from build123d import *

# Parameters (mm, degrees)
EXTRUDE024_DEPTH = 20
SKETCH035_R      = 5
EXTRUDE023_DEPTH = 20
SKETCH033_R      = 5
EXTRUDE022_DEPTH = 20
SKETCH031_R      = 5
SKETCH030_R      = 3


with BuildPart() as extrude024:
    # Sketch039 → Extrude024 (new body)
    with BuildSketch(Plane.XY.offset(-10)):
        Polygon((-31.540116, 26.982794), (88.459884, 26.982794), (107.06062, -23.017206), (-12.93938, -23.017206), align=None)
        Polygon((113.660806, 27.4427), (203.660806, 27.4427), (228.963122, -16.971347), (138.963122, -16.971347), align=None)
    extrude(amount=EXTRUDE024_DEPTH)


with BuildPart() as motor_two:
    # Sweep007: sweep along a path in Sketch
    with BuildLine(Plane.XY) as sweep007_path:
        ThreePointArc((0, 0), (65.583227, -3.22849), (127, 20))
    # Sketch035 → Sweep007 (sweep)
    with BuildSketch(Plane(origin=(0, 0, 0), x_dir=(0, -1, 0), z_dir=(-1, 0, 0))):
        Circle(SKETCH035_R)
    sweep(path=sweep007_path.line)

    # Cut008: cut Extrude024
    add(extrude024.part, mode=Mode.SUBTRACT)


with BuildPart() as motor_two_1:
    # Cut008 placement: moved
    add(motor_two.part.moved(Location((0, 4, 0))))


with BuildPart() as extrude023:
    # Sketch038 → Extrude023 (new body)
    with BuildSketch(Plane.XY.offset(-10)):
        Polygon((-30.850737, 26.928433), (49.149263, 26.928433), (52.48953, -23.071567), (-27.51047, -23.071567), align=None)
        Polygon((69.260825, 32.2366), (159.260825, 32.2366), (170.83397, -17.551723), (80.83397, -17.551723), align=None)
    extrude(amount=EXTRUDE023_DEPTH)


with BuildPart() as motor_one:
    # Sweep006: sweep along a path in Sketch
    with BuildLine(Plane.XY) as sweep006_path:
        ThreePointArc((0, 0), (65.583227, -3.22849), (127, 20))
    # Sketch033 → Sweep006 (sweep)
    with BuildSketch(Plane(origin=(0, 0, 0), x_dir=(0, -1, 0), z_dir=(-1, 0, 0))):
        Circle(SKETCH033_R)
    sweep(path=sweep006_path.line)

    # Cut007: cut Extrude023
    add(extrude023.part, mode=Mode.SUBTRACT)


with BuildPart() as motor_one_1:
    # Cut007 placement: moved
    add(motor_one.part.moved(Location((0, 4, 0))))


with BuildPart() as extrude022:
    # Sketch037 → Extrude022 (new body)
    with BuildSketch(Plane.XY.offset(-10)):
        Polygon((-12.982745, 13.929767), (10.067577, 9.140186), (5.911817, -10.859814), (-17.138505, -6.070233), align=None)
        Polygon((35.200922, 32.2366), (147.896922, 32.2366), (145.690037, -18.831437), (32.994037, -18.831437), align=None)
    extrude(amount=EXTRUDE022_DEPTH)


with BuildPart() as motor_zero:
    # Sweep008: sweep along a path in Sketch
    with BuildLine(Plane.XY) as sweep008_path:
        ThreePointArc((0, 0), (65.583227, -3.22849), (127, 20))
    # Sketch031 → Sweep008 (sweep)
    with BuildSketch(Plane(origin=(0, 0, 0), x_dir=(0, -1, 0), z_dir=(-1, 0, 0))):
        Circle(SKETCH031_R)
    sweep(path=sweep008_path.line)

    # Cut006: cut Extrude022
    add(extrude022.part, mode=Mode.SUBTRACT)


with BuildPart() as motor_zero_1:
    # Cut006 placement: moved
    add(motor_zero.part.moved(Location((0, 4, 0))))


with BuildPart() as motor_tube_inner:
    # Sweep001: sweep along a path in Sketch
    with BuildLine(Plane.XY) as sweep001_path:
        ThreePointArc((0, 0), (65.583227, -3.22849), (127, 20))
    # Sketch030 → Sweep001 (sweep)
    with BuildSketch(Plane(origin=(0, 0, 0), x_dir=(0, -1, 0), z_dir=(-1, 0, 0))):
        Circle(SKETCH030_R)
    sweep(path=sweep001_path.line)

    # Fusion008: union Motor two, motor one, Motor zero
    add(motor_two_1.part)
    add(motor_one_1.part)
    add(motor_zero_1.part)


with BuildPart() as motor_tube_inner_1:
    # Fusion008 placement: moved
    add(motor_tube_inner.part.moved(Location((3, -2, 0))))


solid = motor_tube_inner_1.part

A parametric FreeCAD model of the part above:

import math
import FreeCAD as App
import Part
import Sketcher
from FreeCAD import Vector


def add_polygon(sketch, points):
    """Adds a closed chain of lines whose ends are joined by coincident constraints."""
    first, n = sketch.GeometryCount, len(points)
    for a, b in zip(points, points[1:] + points[:1]):
        sketch.addGeometry(Part.LineSegment(App.Vector(*a, 0), App.Vector(*b, 0)), False)
    for i in range(n):
        sketch.addConstraint(Sketcher.Constraint("Coincident", first + i, 2, first + (i + 1) % n, 1))

doc = App.newDocument("Part")
body = doc.addObject("PartDesign::Body", "Body")
body.AllowCompound = True

# Sketch on XY plane
sketch1 = body.newObject("Sketcher::SketchObject", "Sketch")
sketch1.AttachmentSupport = (doc.getObject("XY_Plane"), [""])
sketch1.MapMode = "FlatFace"
sketch1.AttachmentOffset = App.Placement(Vector(0, 0, -10), App.Rotation())
add_polygon(sketch1, [(88, 27), (-32, 27), (-13, -23), (107, -23)])  # lines 0-3
add_polygon(sketch1, [(204, 27), (114, 27), (139, -17), (229, -17)])  # lines 4-7
sketch1.addConstraint(Sketcher.Constraint("Horizontal", 0))
sketch1.addConstraint(Sketcher.Constraint("Horizontal", 2))
sketch1.addConstraint(Sketcher.Constraint("Horizontal", 4))
sketch1.addConstraint(Sketcher.Constraint("Horizontal", 6))
sketch1.addConstraint(Sketcher.Constraint("Parallel", 1, 3))
sketch1.addConstraint(Sketcher.Constraint("Parallel", 5, 7))
sketch1.addConstraint(Sketcher.Constraint("DistanceX", 0, 2, 0, 1, 120.0))
sketch1.addConstraint(Sketcher.Constraint("DistanceX", 4, 2, 4, 1, 90.0))
sketch1.addConstraint(Sketcher.Constraint("DistanceY", 1, 2, 0, 2, 50.0))
sketch1.addConstraint(Sketcher.Constraint("Distance", 5, 51.1157))
sketch1.addConstraint(Sketcher.Constraint("DistanceY", -1, 1, 4, 2, 27.4427))
sketch1.addConstraint(Sketcher.Constraint("DistanceX", 2, 2, 5, 2, 31.902502))
sketch1.addConstraint(Sketcher.Constraint("DistanceX", 1, 2, -1, 1, 12.93938))
sketch1.addConstraint(Sketcher.Constraint("DistanceX", 3, 2, 4, 2, 25.200922))
sketch1.addConstraint(Sketcher.Constraint("DistanceY", 2, 2, 5, 2, 6.045859))
sketch1.addConstraint(Sketcher.Constraint("DistanceX", 0, 2, 5, 2, 170.503238))
pad1 = body.newObject("PartDesign::Pad", "Pad")
pad1.Profile = sketch1
pad1.Length = 20
body2 = doc.addObject("PartDesign::Body", "Body001")

# Sketch on YZ plane
sketch2 = body2.newObject("Sketcher::SketchObject", "Sketch001")
sketch2.AttachmentSupport = (doc.getObject("YZ_Plane001"), [""])
sketch2.MapMode = "FlatFace"
sketch2.addGeometry(Part.Circle(Vector(0, 0, 0), Vector(0, 0, 1), 5), False)
sketch2.addConstraint(Sketcher.Constraint("Coincident", 0, 3, -1, 1))
sketch2.addConstraint(Sketcher.Constraint("Diameter", 0, 10.0))

# Sketch on XY plane
sketch3 = body2.newObject("Sketcher::SketchObject", "Sketch002")
sketch3.AttachmentSupport = (doc.getObject("XY_Plane001"), [""])
sketch3.MapMode = "FlatFace"
sketch3.addGeometry(Part.ArcOfCircle(Part.Circle(Vector(41, 156, 0), Vector(0, 0, 1), 161), math.radians(-105), math.radians(-58)), False)
sketch3.addConstraint(Sketcher.Constraint("Coincident", 0, 1, -1, 1))
sketch3.addConstraint(Sketcher.Constraint("DistanceX", -1, 1, 0, 2, 127.0))
sketch3.addConstraint(Sketcher.Constraint("DistanceY", -1, 1, 0, 2, 20.0))
sketch3.addConstraint(Sketcher.Constraint("Radius", 0, 160.981841))
doc.recompute()

additivepipe = body2.newObject("PartDesign::AdditivePipe", "AdditivePipe")
additivepipe.Profile = sketch2
additivepipe.Spine = (sketch3, ["Edge1"])
doc.recompute()

boolean = body2.newObject("PartDesign::Boolean", "Boolean")
boolean.Type = "Cut"
boolean.addObjects([body])
body3 = doc.addObject("PartDesign::Body", "Body002")
doc.recompute()

body2.Placement = App.Placement(Vector(0, 4, 0), App.Rotation(Vector(0, 0, 1), 0))
boolean2 = body3.newObject("PartDesign::Boolean", "Boolean001")
boolean2.Type = "Fuse"
boolean2.addObjects([body2])
body4 = doc.addObject("PartDesign::Body", "Body003")
body4.AllowCompound = True

# Sketch on XY plane
sketch4 = body4.newObject("Sketcher::SketchObject", "Sketch003")
sketch4.AttachmentSupport = (doc.getObject("XY_Plane003"), [""])
sketch4.MapMode = "FlatFace"
sketch4.AttachmentOffset = App.Placement(Vector(0, 0, -10), App.Rotation())
add_polygon(sketch4, [(49, 27), (-31, 27), (-28, -23), (52, -23)])  # lines 0-3
add_polygon(sketch4, [(159, 32), (69, 32), (81, -18), (171, -18)])  # lines 4-7
sketch4.addConstraint(Sketcher.Constraint("Horizontal", 0))
sketch4.addConstraint(Sketcher.Constraint("Horizontal", 2))
sketch4.addConstraint(Sketcher.Constraint("Horizontal", 4))
sketch4.addConstraint(Sketcher.Constraint("Horizontal", 6))
sketch4.addConstraint(Sketcher.Constraint("Parallel", 1, 3))
sketch4.addConstraint(Sketcher.Constraint("Parallel", 5, 7))
sketch4.addConstraint(Sketcher.Constraint("DistanceX", 0, 2, 0, 1, 80.0))
sketch4.addConstraint(Sketcher.Constraint("DistanceX", 4, 2, 4, 1, 90.0))
sketch4.addConstraint(Sketcher.Constraint("DistanceY", 1, 2, 0, 2, 50.0))
sketch4.addConstraint(Sketcher.Constraint("Distance", 5, 51.1157))
sketch4.addConstraint(Sketcher.Constraint("DistanceY", -1, 1, 4, 2, 32.2366))
sketch4.addConstraint(Sketcher.Constraint("Distance", 1, 50.11145))
sketch4.addConstraint(Sketcher.Constraint("DistanceX", 1, 2, -1, 1, 27.51047))
sketch4.addConstraint(Sketcher.Constraint("DistanceX", -1, 1, 5, 2, 80.83397))
sketch4.addConstraint(Sketcher.Constraint("DistanceX", 3, 2, 4, 2, 20.111562))
sketch4.addConstraint(Sketcher.Constraint("DistanceY", -1, 1, 0, 2, 26.928433))
pad2 = body4.newObject("PartDesign::Pad", "Pad001")
pad2.Profile = sketch4
pad2.Length = 20
body5 = doc.addObject("PartDesign::Body", "Body004")

# Sketch on YZ plane
sketch5 = body5.newObject("Sketcher::SketchObject", "Sketch004")
sketch5.AttachmentSupport = (doc.getObject("YZ_Plane004"), [""])
sketch5.MapMode = "FlatFace"
sketch5.addGeometry(Part.Circle(Vector(0, 0, 0), Vector(0, 0, 1), 5), False)
sketch5.addConstraint(Sketcher.Constraint("Coincident", 0, 3, -1, 1))
sketch5.addConstraint(Sketcher.Constraint("Diameter", 0, 10.0))

# Sketch on XY plane
sketch6 = body5.newObject("Sketcher::SketchObject", "Sketch005")
sketch6.AttachmentSupport = (doc.getObject("XY_Plane004"), [""])
sketch6.MapMode = "FlatFace"
sketch6.addGeometry(Part.ArcOfCircle(Part.Circle(Vector(41, 156, 0), Vector(0, 0, 1), 161), math.radians(-105), math.radians(-58)), False)
sketch6.addConstraint(Sketcher.Constraint("Coincident", 0, 1, -1, 1))
sketch6.addConstraint(Sketcher.Constraint("DistanceX", -1, 1, 0, 2, 127.0))
sketch6.addConstraint(Sketcher.Constraint("DistanceY", -1, 1, 0, 2, 20.0))
sketch6.addConstraint(Sketcher.Constraint("Radius", 0, 160.981841))
doc.recompute()

additivepipe2 = body5.newObject("PartDesign::AdditivePipe", "AdditivePipe001")
additivepipe2.Profile = sketch5
additivepipe2.Spine = (sketch6, ["Edge1"])
doc.recompute()

boolean3 = body5.newObject("PartDesign::Boolean", "Boolean002")
boolean3.Type = "Cut"
boolean3.addObjects([body4])
body6 = doc.addObject("PartDesign::Body", "Body005")
doc.recompute()

body5.Placement = App.Placement(Vector(0, 4, 0), App.Rotation(Vector(0, 0, 1), 0))
boolean4 = body6.newObject("PartDesign::Boolean", "Boolean003")
boolean4.Type = "Fuse"
boolean4.addObjects([body5])
body7 = doc.addObject("PartDesign::Body", "Body006")
body7.AllowCompound = True

# Sketch on XY plane
sketch7 = body7.newObject("Sketcher::SketchObject", "Sketch006")
sketch7.AttachmentSupport = (doc.getObject("XY_Plane006"), [""])
sketch7.MapMode = "FlatFace"
sketch7.AttachmentOffset = App.Placement(Vector(0, 0, -10), App.Rotation())
add_polygon(sketch7, [(10, 9), (-13, 14), (-17, -6), (6, -11)])  # lines 0-3
add_polygon(sketch7, [(148, 32), (35, 32), (33, -19), (146, -19)])  # lines 4-7
sketch7.addConstraint(Sketcher.Constraint("Horizontal", 4))
sketch7.addConstraint(Sketcher.Constraint("Horizontal", 6))
sketch7.addConstraint(Sketcher.Constraint("Perpendicular", 0, 1))
sketch7.addConstraint(Sketcher.Constraint("Perpendicular", 1, 2))
sketch7.addConstraint(Sketcher.Constraint("Perpendicular", 2, 3))
sketch7.addConstraint(Sketcher.Constraint("Parallel", 5, 7))
sketch7.addConstraint(Sketcher.Constraint("DistanceY", 1, 2, 0, 2, 20.0))
sketch7.addConstraint(Sketcher.Constraint("DistanceX", 4, 2, 4, 1, 112.696))
sketch7.addConstraint(Sketcher.Constraint("Distance", 5, 51.1157))
sketch7.addConstraint(Sketcher.Constraint("DistanceY", -1, 1, 4, 2, 32.2366))
sketch7.addConstraint(Sketcher.Constraint("DistanceX", -1, 1, 4, 2, 35.200922))
sketch7.addConstraint(Sketcher.Constraint("DistanceX", 1, 2, 0, 2, 4.15576))
sketch7.addConstraint(Sketcher.Constraint("DistanceX", 1, 2, 2, 2, 23.050322))
sketch7.addConstraint(Sketcher.Constraint("DistanceX", 2, 2, 5, 2, 27.08222))
sketch7.addConstraint(Sketcher.Constraint("DistanceX", 0, 2, -1, 1, 12.982745))
sketch7.addConstraint(Sketcher.Constraint("DistanceY", -1, 1, 0, 2, 13.929767))
pad3 = body7.newObject("PartDesign::Pad", "Pad002")
pad3.Profile = sketch7
pad3.Length = 20
body8 = doc.addObject("PartDesign::Body", "Body007")

# Sketch on YZ plane
sketch8 = body8.newObject("Sketcher::SketchObject", "Sketch007")
sketch8.AttachmentSupport = (doc.getObject("YZ_Plane007"), [""])
sketch8.MapMode = "FlatFace"
sketch8.addGeometry(Part.Circle(Vector(0, 0, 0), Vector(0, 0, 1), 5), False)
sketch8.addConstraint(Sketcher.Constraint("Coincident", 0, 3, -1, 1))
sketch8.addConstraint(Sketcher.Constraint("Diameter", 0, 10.0))

# Sketch on XY plane
sketch9 = body8.newObject("Sketcher::SketchObject", "Sketch008")
sketch9.AttachmentSupport = (doc.getObject("XY_Plane007"), [""])
sketch9.MapMode = "FlatFace"
sketch9.addGeometry(Part.ArcOfCircle(Part.Circle(Vector(41, 156, 0), Vector(0, 0, 1), 161), math.radians(-105), math.radians(-58)), False)
sketch9.addConstraint(Sketcher.Constraint("Coincident", 0, 1, -1, 1))
sketch9.addConstraint(Sketcher.Constraint("DistanceX", -1, 1, 0, 2, 127.0))
sketch9.addConstraint(Sketcher.Constraint("DistanceY", -1, 1, 0, 2, 20.0))
sketch9.addConstraint(Sketcher.Constraint("Radius", 0, 160.981841))
doc.recompute()

additivepipe3 = body8.newObject("PartDesign::AdditivePipe", "AdditivePipe002")
additivepipe3.Profile = sketch8
additivepipe3.Spine = (sketch9, ["Edge1"])
doc.recompute()

boolean5 = body8.newObject("PartDesign::Boolean", "Boolean004")
boolean5.Type = "Cut"
boolean5.addObjects([body7])
body9 = doc.addObject("PartDesign::Body", "Body008")
doc.recompute()

body8.Placement = App.Placement(Vector(0, 4, 0), App.Rotation(Vector(0, 0, 1), 0))
boolean6 = body9.newObject("PartDesign::Boolean", "Boolean005")
boolean6.Type = "Fuse"
boolean6.addObjects([body8])
body10 = doc.addObject("PartDesign::Body", "Body009")

# Sketch on YZ plane
sketch10 = body10.newObject("Sketcher::SketchObject", "Sketch009")
sketch10.AttachmentSupport = (doc.getObject("YZ_Plane009"), [""])
sketch10.MapMode = "FlatFace"
sketch10.addGeometry(Part.Circle(Vector(0, 0, 0), Vector(0, 0, 1), 3), False)
sketch10.addConstraint(Sketcher.Constraint("Coincident", 0, 3, -1, 1))
sketch10.addConstraint(Sketcher.Constraint("Diameter", 0, 6.0))

# Sketch on XY plane
sketch11 = body10.newObject("Sketcher::SketchObject", "Sketch010")
sketch11.AttachmentSupport = (doc.getObject("XY_Plane009"), [""])
sketch11.MapMode = "FlatFace"
sketch11.addGeometry(Part.ArcOfCircle(Part.Circle(Vector(41, 156, 0), Vector(0, 0, 1), 161), math.radians(-105), math.radians(-58)), False)
sketch11.addConstraint(Sketcher.Constraint("Coincident", 0, 1, -1, 1))
sketch11.addConstraint(Sketcher.Constraint("DistanceX", -1, 1, 0, 2, 127.0))
sketch11.addConstraint(Sketcher.Constraint("DistanceY", -1, 1, 0, 2, 20.0))
sketch11.addConstraint(Sketcher.Constraint("Radius", 0, 160.981841))
doc.recompute()

additivepipe4 = body10.newObject("PartDesign::AdditivePipe", "AdditivePipe003")
additivepipe4.Profile = sketch10
additivepipe4.Spine = (sketch11, ["Edge1"])
doc.recompute()

boolean7 = body10.newObject("PartDesign::Boolean", "Boolean006")
boolean7.Type = "Fuse"
boolean7.addObjects([body3])
doc.recompute()

boolean8 = body10.newObject("PartDesign::Boolean", "Boolean007")
boolean8.Type = "Fuse"
boolean8.addObjects([body6])
doc.recompute()

boolean9 = body10.newObject("PartDesign::Boolean", "Boolean008")
boolean9.Type = "Fuse"
boolean9.addObjects([body9])
body11 = doc.addObject("PartDesign::Body", "Body010")
doc.recompute()

body10.Placement = App.Placement(Vector(3, -2, 0), App.Rotation(Vector(0, 0, 1), 0))
boolean10 = body11.newObject("PartDesign::Boolean", "Boolean009")
boolean10.Type = "Fuse"
boolean10.addObjects([body10])

doc.recompute()
